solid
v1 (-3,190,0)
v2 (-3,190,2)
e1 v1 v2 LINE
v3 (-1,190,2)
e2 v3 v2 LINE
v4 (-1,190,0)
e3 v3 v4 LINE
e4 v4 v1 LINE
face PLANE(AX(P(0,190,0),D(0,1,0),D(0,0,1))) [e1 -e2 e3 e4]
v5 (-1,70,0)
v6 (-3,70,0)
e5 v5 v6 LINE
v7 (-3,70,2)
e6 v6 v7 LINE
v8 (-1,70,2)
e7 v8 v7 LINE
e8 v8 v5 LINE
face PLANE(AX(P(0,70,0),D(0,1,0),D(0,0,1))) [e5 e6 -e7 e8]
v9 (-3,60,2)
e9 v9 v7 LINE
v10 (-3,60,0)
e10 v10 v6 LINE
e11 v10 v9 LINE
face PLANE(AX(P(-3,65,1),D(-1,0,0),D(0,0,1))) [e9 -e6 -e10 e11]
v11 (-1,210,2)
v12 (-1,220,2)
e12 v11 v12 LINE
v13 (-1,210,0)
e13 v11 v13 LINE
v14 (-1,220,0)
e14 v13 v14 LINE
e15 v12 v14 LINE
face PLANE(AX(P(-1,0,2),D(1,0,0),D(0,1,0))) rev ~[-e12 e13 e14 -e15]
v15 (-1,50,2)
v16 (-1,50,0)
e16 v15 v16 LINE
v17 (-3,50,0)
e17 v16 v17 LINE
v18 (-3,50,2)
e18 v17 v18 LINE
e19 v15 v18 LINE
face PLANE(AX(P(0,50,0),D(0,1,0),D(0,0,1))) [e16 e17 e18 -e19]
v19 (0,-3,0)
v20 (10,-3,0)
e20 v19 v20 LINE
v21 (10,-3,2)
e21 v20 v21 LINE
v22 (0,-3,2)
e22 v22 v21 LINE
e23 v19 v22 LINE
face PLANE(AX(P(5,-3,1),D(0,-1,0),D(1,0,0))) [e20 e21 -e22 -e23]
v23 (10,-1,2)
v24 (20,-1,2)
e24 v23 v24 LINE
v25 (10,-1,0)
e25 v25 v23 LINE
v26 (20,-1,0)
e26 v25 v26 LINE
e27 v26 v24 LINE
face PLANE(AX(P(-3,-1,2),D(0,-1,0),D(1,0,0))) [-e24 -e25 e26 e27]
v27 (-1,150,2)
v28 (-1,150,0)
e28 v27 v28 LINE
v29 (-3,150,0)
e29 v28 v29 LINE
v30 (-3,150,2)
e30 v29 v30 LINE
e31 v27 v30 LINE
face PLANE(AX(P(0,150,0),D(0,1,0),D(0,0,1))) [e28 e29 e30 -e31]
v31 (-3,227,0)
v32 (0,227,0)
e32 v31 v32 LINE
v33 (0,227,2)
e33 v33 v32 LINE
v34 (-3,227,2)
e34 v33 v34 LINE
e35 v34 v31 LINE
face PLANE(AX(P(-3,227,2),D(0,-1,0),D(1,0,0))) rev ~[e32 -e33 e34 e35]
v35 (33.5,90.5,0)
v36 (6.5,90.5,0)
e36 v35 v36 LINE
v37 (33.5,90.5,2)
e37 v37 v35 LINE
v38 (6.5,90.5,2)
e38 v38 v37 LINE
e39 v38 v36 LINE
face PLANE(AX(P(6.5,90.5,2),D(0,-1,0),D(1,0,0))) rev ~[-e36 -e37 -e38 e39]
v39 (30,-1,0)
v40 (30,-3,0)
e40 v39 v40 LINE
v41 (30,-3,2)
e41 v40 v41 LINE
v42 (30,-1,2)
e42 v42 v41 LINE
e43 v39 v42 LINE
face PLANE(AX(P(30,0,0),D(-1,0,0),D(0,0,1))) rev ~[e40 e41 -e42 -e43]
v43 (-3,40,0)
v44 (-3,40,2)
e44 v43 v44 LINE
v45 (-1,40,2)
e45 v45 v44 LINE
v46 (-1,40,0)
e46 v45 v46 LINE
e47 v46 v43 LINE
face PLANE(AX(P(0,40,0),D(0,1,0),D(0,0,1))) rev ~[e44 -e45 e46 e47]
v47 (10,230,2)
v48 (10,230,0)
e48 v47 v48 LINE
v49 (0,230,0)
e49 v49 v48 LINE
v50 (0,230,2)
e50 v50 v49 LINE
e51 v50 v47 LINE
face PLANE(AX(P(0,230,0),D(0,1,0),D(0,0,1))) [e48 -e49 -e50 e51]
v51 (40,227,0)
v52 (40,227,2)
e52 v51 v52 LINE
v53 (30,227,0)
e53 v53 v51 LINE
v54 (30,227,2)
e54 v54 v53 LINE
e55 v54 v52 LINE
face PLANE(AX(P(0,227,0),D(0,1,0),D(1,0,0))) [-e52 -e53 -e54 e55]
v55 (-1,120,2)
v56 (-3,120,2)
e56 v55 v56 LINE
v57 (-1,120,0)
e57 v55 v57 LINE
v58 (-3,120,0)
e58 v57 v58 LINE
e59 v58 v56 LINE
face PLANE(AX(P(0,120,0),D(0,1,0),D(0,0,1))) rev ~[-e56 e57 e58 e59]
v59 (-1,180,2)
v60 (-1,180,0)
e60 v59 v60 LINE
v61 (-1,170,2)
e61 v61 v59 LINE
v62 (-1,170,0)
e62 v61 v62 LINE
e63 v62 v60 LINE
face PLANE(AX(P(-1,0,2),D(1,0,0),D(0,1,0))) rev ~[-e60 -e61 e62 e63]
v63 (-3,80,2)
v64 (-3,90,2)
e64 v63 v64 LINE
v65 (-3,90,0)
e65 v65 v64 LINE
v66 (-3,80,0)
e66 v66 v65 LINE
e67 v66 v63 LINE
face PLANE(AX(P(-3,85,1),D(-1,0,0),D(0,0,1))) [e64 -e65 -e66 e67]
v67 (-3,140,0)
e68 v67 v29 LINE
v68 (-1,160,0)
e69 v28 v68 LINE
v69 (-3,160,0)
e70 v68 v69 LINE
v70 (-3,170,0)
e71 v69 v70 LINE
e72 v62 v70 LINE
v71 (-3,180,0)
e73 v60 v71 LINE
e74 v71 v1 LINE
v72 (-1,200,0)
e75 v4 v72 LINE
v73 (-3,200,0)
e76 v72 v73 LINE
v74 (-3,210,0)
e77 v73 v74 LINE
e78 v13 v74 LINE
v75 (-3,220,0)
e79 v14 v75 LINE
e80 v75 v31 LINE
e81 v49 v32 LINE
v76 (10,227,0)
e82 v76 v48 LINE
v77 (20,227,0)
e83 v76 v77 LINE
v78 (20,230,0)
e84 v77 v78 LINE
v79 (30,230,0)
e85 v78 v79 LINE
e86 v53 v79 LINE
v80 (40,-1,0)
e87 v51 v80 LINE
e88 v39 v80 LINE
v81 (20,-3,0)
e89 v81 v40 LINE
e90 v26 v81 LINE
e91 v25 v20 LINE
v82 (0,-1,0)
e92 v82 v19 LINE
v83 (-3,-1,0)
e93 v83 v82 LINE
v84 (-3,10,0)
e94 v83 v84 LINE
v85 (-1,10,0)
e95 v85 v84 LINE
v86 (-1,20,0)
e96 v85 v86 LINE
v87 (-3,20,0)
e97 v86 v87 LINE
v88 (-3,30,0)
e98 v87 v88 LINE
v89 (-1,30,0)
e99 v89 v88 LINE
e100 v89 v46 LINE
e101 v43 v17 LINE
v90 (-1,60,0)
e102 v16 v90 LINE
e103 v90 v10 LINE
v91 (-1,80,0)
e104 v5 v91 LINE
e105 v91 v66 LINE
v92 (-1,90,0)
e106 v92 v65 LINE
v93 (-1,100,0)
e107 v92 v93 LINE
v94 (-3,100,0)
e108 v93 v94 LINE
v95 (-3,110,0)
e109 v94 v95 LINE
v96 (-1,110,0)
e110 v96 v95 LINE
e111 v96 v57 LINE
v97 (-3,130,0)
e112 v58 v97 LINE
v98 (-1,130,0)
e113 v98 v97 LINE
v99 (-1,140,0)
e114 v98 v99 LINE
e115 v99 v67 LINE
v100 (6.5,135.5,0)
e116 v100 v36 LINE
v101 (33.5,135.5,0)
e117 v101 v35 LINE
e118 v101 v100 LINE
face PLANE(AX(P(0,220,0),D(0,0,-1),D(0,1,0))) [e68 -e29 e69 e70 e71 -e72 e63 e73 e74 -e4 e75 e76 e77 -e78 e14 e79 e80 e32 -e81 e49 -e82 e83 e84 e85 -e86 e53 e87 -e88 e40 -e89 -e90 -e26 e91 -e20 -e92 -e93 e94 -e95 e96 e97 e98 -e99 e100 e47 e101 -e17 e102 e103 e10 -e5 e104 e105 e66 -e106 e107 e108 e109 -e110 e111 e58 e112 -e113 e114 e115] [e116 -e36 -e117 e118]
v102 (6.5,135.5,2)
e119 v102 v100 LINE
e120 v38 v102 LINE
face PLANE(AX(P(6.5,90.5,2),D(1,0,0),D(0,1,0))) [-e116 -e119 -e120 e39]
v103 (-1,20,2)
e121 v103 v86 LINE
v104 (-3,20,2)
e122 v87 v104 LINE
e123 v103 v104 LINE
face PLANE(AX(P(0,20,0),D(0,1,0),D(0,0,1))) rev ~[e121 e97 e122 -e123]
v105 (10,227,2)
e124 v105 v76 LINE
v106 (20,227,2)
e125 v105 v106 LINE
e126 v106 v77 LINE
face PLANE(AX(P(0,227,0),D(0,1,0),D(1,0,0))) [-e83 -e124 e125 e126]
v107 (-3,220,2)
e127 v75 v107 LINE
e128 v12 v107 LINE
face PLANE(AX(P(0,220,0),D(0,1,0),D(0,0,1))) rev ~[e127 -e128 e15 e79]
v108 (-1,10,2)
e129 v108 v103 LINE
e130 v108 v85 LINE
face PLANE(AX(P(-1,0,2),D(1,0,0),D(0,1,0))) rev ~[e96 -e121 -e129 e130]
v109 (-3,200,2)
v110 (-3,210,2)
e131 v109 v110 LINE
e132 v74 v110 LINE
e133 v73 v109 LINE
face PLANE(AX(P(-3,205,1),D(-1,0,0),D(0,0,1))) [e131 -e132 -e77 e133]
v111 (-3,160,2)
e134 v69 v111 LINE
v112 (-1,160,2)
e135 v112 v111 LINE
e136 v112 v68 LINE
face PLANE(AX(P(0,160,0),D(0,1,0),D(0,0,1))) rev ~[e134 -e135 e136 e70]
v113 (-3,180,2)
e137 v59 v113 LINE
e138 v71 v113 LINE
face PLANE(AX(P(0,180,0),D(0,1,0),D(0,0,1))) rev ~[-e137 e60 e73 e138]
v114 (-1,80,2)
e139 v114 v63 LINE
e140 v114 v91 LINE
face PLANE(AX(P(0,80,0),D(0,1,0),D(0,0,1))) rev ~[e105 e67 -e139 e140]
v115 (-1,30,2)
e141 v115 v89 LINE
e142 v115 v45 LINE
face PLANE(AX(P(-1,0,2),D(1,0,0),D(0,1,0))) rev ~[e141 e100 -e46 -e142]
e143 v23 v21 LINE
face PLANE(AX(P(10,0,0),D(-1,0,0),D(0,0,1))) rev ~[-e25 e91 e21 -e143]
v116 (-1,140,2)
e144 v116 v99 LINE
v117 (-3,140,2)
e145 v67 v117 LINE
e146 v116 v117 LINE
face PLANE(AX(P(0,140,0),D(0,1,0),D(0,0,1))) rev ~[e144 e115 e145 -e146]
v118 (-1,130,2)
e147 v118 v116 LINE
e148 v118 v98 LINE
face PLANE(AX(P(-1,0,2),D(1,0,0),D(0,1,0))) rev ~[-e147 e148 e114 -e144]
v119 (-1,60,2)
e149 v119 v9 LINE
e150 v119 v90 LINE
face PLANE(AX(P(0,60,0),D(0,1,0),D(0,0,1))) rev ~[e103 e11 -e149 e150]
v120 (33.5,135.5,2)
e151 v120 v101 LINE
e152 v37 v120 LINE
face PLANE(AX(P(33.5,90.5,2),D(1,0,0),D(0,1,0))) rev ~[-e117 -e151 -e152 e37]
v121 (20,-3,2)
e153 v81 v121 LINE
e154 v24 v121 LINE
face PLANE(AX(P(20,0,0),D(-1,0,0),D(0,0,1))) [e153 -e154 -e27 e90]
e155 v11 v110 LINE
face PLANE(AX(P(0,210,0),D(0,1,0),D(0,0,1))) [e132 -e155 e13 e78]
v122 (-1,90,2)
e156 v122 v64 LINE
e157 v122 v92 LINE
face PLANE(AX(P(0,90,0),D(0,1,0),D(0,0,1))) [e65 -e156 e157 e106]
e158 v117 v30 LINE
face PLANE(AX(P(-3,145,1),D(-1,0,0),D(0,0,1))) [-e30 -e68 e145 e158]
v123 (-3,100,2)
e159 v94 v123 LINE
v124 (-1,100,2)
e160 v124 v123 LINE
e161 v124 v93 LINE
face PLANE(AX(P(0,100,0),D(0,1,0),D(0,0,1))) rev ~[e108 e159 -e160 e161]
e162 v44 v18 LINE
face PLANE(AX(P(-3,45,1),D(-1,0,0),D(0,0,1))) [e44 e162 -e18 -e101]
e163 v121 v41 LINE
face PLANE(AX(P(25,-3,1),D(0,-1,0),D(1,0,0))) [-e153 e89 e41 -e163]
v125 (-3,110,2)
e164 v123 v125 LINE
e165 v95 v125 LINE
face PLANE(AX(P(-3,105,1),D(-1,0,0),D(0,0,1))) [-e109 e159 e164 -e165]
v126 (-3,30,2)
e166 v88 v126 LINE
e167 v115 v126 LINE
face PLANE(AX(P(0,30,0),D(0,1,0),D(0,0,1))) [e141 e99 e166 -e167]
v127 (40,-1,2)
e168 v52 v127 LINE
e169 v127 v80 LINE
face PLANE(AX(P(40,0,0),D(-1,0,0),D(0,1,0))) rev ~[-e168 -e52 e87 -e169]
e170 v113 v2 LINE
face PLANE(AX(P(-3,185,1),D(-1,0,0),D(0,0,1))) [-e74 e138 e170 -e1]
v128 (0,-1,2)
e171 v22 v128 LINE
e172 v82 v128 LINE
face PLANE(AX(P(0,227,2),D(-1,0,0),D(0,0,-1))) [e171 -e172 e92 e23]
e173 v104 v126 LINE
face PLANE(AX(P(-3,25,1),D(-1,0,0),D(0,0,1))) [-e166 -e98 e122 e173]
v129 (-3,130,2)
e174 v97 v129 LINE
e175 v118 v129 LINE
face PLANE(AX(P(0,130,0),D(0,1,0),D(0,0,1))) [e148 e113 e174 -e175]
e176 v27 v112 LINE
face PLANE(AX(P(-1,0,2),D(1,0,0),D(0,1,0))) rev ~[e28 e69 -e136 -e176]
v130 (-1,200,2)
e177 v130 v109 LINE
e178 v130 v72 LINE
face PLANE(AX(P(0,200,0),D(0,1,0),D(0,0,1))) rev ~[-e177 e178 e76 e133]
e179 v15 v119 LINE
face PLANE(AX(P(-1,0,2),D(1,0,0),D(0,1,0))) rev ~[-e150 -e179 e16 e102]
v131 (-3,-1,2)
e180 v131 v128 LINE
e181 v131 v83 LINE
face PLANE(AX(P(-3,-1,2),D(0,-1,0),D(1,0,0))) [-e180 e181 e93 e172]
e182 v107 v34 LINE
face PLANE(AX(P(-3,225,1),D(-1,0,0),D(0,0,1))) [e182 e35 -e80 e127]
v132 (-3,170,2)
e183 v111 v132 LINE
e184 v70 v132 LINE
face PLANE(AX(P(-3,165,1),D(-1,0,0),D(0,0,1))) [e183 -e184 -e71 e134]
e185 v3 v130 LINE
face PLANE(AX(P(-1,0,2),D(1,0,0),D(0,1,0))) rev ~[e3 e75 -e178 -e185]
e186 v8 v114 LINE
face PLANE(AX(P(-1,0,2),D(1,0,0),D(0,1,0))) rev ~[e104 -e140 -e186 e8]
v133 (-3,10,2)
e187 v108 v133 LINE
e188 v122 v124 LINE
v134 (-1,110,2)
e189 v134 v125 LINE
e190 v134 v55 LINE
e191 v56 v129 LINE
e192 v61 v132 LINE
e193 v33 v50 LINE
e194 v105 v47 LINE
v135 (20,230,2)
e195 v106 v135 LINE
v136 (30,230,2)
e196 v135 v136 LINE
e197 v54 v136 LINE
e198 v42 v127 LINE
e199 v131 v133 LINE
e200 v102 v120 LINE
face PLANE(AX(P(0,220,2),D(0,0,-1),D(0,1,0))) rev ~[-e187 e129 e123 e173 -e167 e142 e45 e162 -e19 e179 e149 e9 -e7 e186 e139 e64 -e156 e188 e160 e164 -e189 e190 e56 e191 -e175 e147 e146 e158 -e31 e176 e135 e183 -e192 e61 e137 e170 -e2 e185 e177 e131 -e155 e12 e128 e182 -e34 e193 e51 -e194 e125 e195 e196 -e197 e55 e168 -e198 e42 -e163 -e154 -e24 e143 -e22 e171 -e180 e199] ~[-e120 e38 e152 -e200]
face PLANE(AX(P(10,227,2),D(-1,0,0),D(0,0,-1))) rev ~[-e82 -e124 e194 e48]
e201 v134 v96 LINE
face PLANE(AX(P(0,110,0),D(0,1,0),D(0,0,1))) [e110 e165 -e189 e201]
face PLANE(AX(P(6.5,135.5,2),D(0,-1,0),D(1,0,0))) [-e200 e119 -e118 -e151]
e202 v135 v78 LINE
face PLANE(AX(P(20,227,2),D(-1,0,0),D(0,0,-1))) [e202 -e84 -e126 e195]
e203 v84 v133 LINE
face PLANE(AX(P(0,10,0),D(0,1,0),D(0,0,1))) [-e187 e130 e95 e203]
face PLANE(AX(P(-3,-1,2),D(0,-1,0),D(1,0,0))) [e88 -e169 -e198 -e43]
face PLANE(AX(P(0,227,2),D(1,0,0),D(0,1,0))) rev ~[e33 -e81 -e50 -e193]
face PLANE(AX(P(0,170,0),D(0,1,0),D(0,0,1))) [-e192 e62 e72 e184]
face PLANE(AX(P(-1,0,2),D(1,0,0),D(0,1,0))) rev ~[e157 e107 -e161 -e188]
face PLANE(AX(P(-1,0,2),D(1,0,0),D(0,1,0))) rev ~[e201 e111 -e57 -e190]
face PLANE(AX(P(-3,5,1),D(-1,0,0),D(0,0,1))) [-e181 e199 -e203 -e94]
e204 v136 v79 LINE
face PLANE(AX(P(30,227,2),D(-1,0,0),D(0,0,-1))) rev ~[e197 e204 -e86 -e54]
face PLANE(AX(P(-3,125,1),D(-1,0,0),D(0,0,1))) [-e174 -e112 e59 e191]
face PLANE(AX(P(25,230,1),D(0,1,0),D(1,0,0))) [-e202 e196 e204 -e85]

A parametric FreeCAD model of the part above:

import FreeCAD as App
import Part
import Sketcher

V = App.Vector
Q = App.Units.Quantity


def add_polygon(sketch, points):
    """Adds a closed chain of lines whose ends are joined by coincident constraints."""
    first, n = sketch.GeometryCount, len(points)
    for a, b in zip(points, points[1:] + points[:1]):
        sketch.addGeometry(Part.LineSegment(App.Vector(*a, 0), App.Vector(*b, 0)), False)
    for i in range(n):
        sketch.addConstraint(Sketcher.Constraint("Coincident", first + i, 2, first + (i + 1) % n, 1))

doc = App.newDocument("Part")
body = doc.addObject("PartDesign::Body", "Body")

# Sketch on XY plane
sketch1 = body.newObject("Sketcher::SketchObject", "Sketch")
sketch1.AttachmentSupport = (doc.getObject("XY_Plane"), [""])
sketch1.MapMode = "FlatFace"
add_polygon(sketch1, [(0, 227), (0, 0), (40, 0), (40, 227)])  # lines 0-3
sketch1.addConstraint([
    Sketcher.Constraint("Vertical", 0),
    Sketcher.Constraint("Horizontal", 1),
    Sketcher.Constraint("Vertical", 2),
    Sketcher.Constraint("Horizontal", 3),
    Sketcher.Constraint("Coincident", 0, 2, -1, 1),
    Sketcher.Constraint("DistanceX", 1, 1, 1, 2, Q("40 mm")),
    Sketcher.Constraint("DistanceY", 0, 2, 0, 1, Q("227 mm")),
])
pad1 = body.newObject("PartDesign::Pad", "Pad")
pad1.Profile = sketch1
pad1.Length = 2

# Sketch on XZ plane
sketch2 = body.newObject("Sketcher::SketchObject", "Sketch001")
sketch2.AttachmentSupport = (doc.getObject("XZ_Plane"), [""])
sketch2.MapMode = "FlatFace"
add_polygon(sketch2, [(20, 2), (20, 0), (30, 0), (30, 2)])  # lines 0-3
sketch2.addConstraint([
    Sketcher.Constraint("Vertical", 0),
    Sketcher.Constraint("Horizontal", 1),
    Sketcher.Constraint("Vertical", 2),
    Sketcher.Constraint("Horizontal", 3),
    Sketcher.Constraint("PointOnObject", 0, 2, -1),
    Sketcher.Constraint("DistanceX", 1, 1, 1, 2, Q("10 mm")),
    Sketcher.Constraint("DistanceY", 0, 2, 0, 1, Q("2 mm")),
    Sketcher.Constraint("DistanceX", -1, 1, 0, 2, Q("20 mm")),
])
pad2 = body.newObject("PartDesign::Pad", "Pad001")
pad2.Profile = sketch2
pad2.Length = 3
doc.recompute()

linearpattern = body.newObject("PartDesign::LinearPattern", "LinearPattern")
linearpattern.Originals = [pad2]
linearpattern.Direction = (doc.getObject("X_Axis"), [""])
linearpattern.Mode = "offset"
linearpattern.Offset = 20
linearpattern.Occurrences = 2
linearpattern.Reversed = True
body.Tip = linearpattern

# Sketch on XZ plane
sketch3 = body.newObject("Sketcher::SketchObject", "Sketch002")
sketch3.AttachmentSupport = (doc.getObject("XZ_Plane"), [""])
sketch3.MapMode = "FlatFace"
sketch3.AttachmentOffset = App.Placement(V(0, 0, -227), App.Rotation())
add_polygon(sketch3, [(20, 0), (20, 2), (30, 2), (30, 0)])  # lines 0-3
sketch3.addConstraint([
    Sketcher.Constraint("Vertical", 0),
    Sketcher.Constraint("Horizontal", 1),
    Sketcher.Constraint("Vertical", 2),
    Sketcher.Constraint("Horizontal", 3),
    Sketcher.Constraint("PointOnObject", 2, 2, -1),
    Sketcher.Constraint("DistanceX", 1, 1, 1, 2, Q("10 mm")),
    Sketcher.Constraint("DistanceY", 0, 1, 0, 2, Q("2 mm")),
    Sketcher.Constraint("DistanceX", -1, 1, 0, 2, Q("20 mm")),
])
pad3 = body.newObject("PartDesign::Pad", "Pad002")
pad3.Profile = sketch3
pad3.Length = 3
pad3.Reversed = True
doc.recompute()

linearpattern2 = body.newObject("PartDesign::LinearPattern", "LinearPattern001")
linearpattern2.Originals = [pad3]
linearpattern2.Direction = (doc.getObject("X_Axis"), [""])
linearpattern2.Mode = "offset"
linearpattern2.Offset = 20
linearpattern2.Occurrences = 2
linearpattern2.Reversed = True
body.Tip = linearpattern2

# Sketch on YZ plane
sketch4 = body.newObject("Sketcher::SketchObject", "Sketch003")
sketch4.AttachmentSupport = (doc.getObject("YZ_Plane"), [""])
sketch4.MapMode = "FlatFace"
add_polygon(sketch4, [(10, 0), (0, 0), (0, 2), (10, 2)])  # lines 0-3
sketch4.addConstraint([
    Sketcher.Constraint("Horizontal", 0),
    Sketcher.Constraint("Vertical", 1),
    Sketcher.Constraint("Horizontal", 2),
    Sketcher.Constraint("Vertical", 3),
    Sketcher.Constraint("Coincident", 0, 2, -1, 1),
    Sketcher.Constraint("DistanceX", 0, 2, 0, 1, Q("10 mm")),
    Sketcher.Constraint("DistanceY", 1, 1, 1, 2, Q("2 mm")),
])
pad4 = body.newObject("PartDesign::Pad", "Pad003")
pad4.Profile = sketch4
pad4.Length = 3
pad4.Reversed = True
doc.recompute()

linearpattern3 = body.newObject("PartDesign::LinearPattern", "LinearPattern002")
linearpattern3.Originals = [pad4]
linearpattern3.Direction = (doc.getObject("Y_Axis"), [""])
linearpattern3.Mode = "offset"
linearpattern3.Offset = 20
linearpattern3.Occurrences = 12
body.Tip = linearpattern3

# Sketch on XY plane
sketch5 = body.newObject("Sketcher::SketchObject", "Sketch004")
sketch5.AttachmentSupport = (doc.getObject("XY_Plane"), [""])
sketch5.MapMode = "FlatFace"
sketch5.AttachmentOffset = App.Placement(V(0, 0, 2), App.Rotation())
add_polygon(sketch5, [(-3, 230), (-3, 227), (0, 227), (0, 230)])  # lines 0-3
sketch5.addConstraint([
    Sketcher.Constraint("Vertical", 0),
    Sketcher.Constraint("Horizontal", 1),
    Sketcher.Constraint("Vertical", 2),
    Sketcher.Constraint("Horizontal", 3),
    Sketcher.Constraint("PointOnObject", 1, 2, -2),
    Sketcher.Constraint("Equal", 3, 0),
    Sketcher.Constraint("DistanceX", 1, 1, 1, 2, Q("3 mm")),
    Sketcher.Constraint("DistanceY", -1, 1, 0, 2, Q("227 mm")),
])
pocket1 = body.newObject("PartDesign::Pocket", "Pocket")
pocket1.Profile = sketch5
pocket1.Type = "ThroughAll"

# Sketch on XY plane
sketch6 = body.newObject("Sketcher::SketchObject", "Sketch005")
sketch6.AttachmentSupport = (doc.getObject("XY_Plane"), [""])
sketch6.MapMode = "FlatFace"
sketch6.AttachmentOffset = App.Placement(V(0, 0, 2), App.Rotation())
add_polygon(sketch6, [(-1, 227), (-1, 0), (-3, 0), (-3, -1), (40, -1), (40, 0), (0, 0), (0, 227)])  # lines 0-7
sketch6.addConstraint([
    Sketcher.Constraint("Vertical", 0),
    Sketcher.Constraint("Horizontal", 1),
    Sketcher.Constraint("Vertical", 2),
    Sketcher.Constraint("Horizontal", 3),
    Sketcher.Constraint("Vertical", 4),
    Sketcher.Constraint("Horizontal", 5),
    Sketcher.Constraint("Vertical", 6),
    Sketcher.Constraint("Horizontal", 7),
    Sketcher.Constraint("Coincident", 5, 2, -1, 1),
    Sketcher.Constraint("PointOnObject", 0, 2, -1),
    Sketcher.Constraint("Equal", 7, 2),
    Sketcher.Constraint("DistanceX", 1, 2, 1, 1, Q("2 mm")),
    Sketcher.Constraint("DistanceX", 3, 1, 3, 2, Q("43 mm")),
    Sketcher.Constraint("DistanceX", 5, 2, 5, 1, Q("40 mm")),
    Sketcher.Constraint("DistanceY", 0, 2, 0, 1, Q("227 mm")),
])
pad5 = body.newObject("PartDesign::Pad", "Pad004")
pad5.Profile = sketch6
pad5.Length = 2
pad5.Reversed = True

# Sketch on XY plane
sketch7 = body.newObject("Sketcher::SketchObject", "Sketch006")
sketch7.AttachmentSupport = (doc.getObject("XY_Plane"), [""])
sketch7.MapMode = "FlatFace"
sketch7.AttachmentOffset = App.Placement(V(0, 0, 2), App.Rotation())
add_polygon(sketch7, [(6, 136), (6, 90), (34, 90), (34, 136)])  # lines 0-3
sketch7.addConstraint([
    Sketcher.Constraint("Vertical", 0),
    Sketcher.Constraint("Horizontal", 1),
    Sketcher.Constraint("Vertical", 2),
    Sketcher.Constraint("Horizontal", 3),
    Sketcher.Constraint("DistanceX", 1, 1, 1, 2, Q("27 mm")),
    Sketcher.Constraint("DistanceY", 0, 2, 0, 1, Q("45 mm")),
    Sketcher.Constraint("DistanceX", -1, 1, 0, 2, Q("6.5 mm")),
    Sketcher.Constraint("DistanceY", -1, 1, 0, 2, Q("90.5 mm")),
])
pocket2 = body.newObject("PartDesign::Pocket", "Pocket001")
pocket2.Profile = sketch7
pocket2.Length = 3

doc.recompute()
